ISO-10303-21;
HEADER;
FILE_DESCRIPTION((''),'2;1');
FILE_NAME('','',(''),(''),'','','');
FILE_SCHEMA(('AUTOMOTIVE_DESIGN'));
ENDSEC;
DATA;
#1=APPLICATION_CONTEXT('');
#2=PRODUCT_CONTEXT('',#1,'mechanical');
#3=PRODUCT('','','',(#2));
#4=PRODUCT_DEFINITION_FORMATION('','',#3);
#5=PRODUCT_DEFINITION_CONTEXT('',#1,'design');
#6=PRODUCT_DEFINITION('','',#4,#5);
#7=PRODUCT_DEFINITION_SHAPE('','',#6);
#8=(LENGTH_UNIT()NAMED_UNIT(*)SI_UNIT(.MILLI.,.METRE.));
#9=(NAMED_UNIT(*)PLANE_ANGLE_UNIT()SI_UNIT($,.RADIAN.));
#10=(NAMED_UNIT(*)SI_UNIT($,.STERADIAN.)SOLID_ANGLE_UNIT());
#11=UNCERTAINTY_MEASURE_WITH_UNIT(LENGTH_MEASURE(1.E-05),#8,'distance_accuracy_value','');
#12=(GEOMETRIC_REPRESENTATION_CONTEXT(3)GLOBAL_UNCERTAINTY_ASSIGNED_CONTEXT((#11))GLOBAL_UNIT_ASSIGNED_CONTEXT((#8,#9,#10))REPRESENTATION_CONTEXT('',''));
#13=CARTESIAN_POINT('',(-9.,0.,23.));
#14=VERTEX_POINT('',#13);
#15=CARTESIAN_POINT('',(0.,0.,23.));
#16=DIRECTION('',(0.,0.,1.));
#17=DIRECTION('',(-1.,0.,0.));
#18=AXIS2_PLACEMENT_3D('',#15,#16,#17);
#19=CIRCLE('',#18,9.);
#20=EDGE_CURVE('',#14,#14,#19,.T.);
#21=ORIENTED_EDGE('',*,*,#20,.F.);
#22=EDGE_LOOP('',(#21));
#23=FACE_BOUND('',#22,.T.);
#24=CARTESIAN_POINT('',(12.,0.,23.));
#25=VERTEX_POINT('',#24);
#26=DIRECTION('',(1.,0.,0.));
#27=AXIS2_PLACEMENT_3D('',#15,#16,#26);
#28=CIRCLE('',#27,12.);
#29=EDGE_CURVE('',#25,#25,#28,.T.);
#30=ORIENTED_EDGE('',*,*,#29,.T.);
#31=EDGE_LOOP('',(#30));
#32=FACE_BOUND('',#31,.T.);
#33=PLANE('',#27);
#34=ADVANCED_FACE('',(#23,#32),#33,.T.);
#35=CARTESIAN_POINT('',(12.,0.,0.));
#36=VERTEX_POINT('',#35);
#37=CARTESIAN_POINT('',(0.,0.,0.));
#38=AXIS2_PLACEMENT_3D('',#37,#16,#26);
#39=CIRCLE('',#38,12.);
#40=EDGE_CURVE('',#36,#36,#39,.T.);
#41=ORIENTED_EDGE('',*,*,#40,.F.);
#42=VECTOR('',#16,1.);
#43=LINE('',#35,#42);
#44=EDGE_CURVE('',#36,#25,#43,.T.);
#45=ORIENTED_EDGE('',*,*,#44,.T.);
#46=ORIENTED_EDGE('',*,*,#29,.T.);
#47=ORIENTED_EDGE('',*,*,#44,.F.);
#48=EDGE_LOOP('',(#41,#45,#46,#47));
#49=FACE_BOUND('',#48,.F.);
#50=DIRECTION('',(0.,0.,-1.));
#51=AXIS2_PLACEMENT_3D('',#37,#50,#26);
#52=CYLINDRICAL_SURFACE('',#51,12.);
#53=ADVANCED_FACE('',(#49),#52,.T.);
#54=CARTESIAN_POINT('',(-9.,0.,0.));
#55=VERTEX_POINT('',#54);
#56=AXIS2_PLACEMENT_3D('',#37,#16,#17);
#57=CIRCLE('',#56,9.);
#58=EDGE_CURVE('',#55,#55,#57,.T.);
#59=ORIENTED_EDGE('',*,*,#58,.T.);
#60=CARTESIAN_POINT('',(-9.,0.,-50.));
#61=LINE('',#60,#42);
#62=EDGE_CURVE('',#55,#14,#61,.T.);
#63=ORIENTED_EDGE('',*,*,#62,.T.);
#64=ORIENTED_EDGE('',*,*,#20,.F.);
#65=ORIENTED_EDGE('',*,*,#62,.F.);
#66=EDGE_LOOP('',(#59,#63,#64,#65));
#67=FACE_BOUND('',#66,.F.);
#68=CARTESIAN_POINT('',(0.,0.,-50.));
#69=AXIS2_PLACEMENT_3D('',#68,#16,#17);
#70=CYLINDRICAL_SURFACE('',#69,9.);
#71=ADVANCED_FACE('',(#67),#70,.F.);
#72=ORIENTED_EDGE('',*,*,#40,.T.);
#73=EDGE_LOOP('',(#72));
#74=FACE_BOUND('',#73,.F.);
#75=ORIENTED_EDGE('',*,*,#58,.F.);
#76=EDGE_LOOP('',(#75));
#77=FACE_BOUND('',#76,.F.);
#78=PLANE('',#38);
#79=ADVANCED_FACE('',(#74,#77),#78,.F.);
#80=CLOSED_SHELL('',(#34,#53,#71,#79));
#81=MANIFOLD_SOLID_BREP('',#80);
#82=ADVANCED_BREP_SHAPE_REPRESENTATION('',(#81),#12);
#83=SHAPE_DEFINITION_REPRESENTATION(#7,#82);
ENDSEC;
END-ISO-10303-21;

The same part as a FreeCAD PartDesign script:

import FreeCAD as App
import Part
import Sketcher
Q = App.Units.Quantity

doc = App.newDocument("Part")
body = doc.addObject("PartDesign::Body", "Body")

sketch1 = doc.addObject("Sketcher::SketchObject", "Sketch")
body.addObject(sketch1)
sketch1.AttachmentSupport = (doc.XY_Plane, [""])
sketch1.MapMode = "FlatFace"
sketch1.addGeometry(Part.Circle(App.Vector(0, 0, 0), App.Vector(0, 0, 1), 12), False)
sketch1.addConstraint([
    Sketcher.Constraint("Coincident", 0, 3, -1, 1),
    Sketcher.Constraint("Diameter", 0, Q("24 mm")),
])
pad1 = doc.addObject("PartDesign::Pad", "Pad")
body.addObject(pad1)
pad1.Profile = sketch1
pad1.Length = 23

sketch2 = doc.addObject("Sketcher::SketchObject", "Sketch001")
body.addObject(sketch2)
sketch2.AttachmentSupport = (doc.XY_Plane, [""])
sketch2.MapMode = "FlatFace"
sketch2.addGeometry(Part.Circle(App.Vector(0, 0, 0), App.Vector(0, 0, 1), 9), False)
sketch2.addConstraint([
    Sketcher.Constraint("Coincident", 0, 3, -1, 1),
    Sketcher.Constraint("Diameter", 0, Q("18 mm")),
])
doc.recompute()
hole = doc.addObject("PartDesign::Hole", "Hole")
body.addObject(hole)
hole.Profile = sketch2
hole.ThreadType = "None"
hole.Diameter = 18
hole.DepthType = "Dimension"
hole.Depth = 50
hole.DrillPoint = "Flat"
hole.Reversed = True

doc.recompute()
